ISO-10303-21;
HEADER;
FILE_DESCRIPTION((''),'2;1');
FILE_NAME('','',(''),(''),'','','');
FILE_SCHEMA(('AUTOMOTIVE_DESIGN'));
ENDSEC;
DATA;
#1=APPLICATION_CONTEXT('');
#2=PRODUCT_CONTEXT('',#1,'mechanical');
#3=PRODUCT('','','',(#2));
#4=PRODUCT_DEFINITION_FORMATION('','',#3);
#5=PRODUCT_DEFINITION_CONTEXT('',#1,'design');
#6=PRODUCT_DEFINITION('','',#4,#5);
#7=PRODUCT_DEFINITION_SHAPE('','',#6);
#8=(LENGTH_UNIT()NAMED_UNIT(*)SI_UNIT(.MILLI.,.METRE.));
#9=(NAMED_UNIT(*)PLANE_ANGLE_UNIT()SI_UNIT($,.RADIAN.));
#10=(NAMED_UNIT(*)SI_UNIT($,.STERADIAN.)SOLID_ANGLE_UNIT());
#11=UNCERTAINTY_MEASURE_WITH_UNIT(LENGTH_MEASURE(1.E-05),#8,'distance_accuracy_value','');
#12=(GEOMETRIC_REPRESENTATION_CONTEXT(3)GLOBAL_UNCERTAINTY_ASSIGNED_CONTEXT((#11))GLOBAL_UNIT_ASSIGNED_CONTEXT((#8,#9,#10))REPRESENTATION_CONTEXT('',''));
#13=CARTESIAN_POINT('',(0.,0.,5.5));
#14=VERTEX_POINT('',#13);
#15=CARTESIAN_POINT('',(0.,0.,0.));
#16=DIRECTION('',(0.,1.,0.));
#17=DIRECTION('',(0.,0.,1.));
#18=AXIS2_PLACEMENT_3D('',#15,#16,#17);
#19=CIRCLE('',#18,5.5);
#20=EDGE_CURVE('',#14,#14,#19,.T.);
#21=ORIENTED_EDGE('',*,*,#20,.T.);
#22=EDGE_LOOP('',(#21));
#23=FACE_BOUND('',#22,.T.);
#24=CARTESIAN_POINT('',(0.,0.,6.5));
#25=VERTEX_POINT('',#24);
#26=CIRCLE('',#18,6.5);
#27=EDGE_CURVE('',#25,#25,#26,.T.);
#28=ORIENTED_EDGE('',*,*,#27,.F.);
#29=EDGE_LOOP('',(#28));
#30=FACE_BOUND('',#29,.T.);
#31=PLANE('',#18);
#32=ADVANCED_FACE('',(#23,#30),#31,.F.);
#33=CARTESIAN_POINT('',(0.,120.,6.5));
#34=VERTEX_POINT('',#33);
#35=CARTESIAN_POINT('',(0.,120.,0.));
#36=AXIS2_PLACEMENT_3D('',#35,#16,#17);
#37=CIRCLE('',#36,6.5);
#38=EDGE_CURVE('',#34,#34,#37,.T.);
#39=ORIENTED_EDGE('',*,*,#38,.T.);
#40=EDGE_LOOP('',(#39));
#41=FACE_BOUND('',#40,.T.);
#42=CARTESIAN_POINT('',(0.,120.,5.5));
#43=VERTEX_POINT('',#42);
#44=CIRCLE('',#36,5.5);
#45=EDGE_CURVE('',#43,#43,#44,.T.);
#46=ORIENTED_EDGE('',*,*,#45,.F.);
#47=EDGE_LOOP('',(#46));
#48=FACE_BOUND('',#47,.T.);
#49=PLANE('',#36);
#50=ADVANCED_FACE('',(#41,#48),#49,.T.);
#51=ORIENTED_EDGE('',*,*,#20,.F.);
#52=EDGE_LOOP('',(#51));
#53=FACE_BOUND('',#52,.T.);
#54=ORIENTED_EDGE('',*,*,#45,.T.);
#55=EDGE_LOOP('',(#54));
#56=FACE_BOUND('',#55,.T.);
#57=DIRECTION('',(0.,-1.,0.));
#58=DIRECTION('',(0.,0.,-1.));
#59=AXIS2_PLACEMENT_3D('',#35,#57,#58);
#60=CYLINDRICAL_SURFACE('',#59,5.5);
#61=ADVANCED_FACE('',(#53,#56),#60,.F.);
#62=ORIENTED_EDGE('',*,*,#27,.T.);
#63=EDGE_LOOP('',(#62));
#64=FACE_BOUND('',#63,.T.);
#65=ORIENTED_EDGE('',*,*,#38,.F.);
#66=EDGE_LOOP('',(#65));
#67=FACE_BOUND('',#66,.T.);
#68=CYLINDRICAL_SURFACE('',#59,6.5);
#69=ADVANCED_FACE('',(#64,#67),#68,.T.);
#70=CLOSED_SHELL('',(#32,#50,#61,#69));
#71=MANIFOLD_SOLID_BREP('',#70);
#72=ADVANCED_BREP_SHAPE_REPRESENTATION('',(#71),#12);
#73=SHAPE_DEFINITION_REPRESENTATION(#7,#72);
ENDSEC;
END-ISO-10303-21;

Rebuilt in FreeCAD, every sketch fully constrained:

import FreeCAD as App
import Part
import Sketcher

V = App.Vector
Q = App.Units.Quantity

doc = App.newDocument("Part")
body = doc.addObject("PartDesign::Body", "Body")

sketch1 = doc.addObject("Sketcher::SketchObject", "Sketch")
body.addObject(sketch1)
sketch1.AttachmentSupport = (doc.XZ_Plane, [""])
sketch1.MapMode = "FlatFace"
sketch1.addGeometry([
    Part.Circle(V(0, 0, 0), V(0, 0, 1), 6),
    Part.Circle(V(0, 0, 0), V(0, 0, 1), 6),
], False)
sketch1.addConstraint([
    Sketcher.Constraint("Coincident", 0, 3, -1, 1),
    Sketcher.Constraint("Coincident", 1, 3, -1, 1),
    Sketcher.Constraint("Diameter", 0, Q("13 mm")),
    Sketcher.Constraint("Diameter", 1, Q("11 mm")),
])
pad1 = doc.addObject("PartDesign::Pad", "Pad")
body.addObject(pad1)
pad1.Profile = sketch1
pad1.Length = 120
pad1.Reversed = True

doc.recompute()
